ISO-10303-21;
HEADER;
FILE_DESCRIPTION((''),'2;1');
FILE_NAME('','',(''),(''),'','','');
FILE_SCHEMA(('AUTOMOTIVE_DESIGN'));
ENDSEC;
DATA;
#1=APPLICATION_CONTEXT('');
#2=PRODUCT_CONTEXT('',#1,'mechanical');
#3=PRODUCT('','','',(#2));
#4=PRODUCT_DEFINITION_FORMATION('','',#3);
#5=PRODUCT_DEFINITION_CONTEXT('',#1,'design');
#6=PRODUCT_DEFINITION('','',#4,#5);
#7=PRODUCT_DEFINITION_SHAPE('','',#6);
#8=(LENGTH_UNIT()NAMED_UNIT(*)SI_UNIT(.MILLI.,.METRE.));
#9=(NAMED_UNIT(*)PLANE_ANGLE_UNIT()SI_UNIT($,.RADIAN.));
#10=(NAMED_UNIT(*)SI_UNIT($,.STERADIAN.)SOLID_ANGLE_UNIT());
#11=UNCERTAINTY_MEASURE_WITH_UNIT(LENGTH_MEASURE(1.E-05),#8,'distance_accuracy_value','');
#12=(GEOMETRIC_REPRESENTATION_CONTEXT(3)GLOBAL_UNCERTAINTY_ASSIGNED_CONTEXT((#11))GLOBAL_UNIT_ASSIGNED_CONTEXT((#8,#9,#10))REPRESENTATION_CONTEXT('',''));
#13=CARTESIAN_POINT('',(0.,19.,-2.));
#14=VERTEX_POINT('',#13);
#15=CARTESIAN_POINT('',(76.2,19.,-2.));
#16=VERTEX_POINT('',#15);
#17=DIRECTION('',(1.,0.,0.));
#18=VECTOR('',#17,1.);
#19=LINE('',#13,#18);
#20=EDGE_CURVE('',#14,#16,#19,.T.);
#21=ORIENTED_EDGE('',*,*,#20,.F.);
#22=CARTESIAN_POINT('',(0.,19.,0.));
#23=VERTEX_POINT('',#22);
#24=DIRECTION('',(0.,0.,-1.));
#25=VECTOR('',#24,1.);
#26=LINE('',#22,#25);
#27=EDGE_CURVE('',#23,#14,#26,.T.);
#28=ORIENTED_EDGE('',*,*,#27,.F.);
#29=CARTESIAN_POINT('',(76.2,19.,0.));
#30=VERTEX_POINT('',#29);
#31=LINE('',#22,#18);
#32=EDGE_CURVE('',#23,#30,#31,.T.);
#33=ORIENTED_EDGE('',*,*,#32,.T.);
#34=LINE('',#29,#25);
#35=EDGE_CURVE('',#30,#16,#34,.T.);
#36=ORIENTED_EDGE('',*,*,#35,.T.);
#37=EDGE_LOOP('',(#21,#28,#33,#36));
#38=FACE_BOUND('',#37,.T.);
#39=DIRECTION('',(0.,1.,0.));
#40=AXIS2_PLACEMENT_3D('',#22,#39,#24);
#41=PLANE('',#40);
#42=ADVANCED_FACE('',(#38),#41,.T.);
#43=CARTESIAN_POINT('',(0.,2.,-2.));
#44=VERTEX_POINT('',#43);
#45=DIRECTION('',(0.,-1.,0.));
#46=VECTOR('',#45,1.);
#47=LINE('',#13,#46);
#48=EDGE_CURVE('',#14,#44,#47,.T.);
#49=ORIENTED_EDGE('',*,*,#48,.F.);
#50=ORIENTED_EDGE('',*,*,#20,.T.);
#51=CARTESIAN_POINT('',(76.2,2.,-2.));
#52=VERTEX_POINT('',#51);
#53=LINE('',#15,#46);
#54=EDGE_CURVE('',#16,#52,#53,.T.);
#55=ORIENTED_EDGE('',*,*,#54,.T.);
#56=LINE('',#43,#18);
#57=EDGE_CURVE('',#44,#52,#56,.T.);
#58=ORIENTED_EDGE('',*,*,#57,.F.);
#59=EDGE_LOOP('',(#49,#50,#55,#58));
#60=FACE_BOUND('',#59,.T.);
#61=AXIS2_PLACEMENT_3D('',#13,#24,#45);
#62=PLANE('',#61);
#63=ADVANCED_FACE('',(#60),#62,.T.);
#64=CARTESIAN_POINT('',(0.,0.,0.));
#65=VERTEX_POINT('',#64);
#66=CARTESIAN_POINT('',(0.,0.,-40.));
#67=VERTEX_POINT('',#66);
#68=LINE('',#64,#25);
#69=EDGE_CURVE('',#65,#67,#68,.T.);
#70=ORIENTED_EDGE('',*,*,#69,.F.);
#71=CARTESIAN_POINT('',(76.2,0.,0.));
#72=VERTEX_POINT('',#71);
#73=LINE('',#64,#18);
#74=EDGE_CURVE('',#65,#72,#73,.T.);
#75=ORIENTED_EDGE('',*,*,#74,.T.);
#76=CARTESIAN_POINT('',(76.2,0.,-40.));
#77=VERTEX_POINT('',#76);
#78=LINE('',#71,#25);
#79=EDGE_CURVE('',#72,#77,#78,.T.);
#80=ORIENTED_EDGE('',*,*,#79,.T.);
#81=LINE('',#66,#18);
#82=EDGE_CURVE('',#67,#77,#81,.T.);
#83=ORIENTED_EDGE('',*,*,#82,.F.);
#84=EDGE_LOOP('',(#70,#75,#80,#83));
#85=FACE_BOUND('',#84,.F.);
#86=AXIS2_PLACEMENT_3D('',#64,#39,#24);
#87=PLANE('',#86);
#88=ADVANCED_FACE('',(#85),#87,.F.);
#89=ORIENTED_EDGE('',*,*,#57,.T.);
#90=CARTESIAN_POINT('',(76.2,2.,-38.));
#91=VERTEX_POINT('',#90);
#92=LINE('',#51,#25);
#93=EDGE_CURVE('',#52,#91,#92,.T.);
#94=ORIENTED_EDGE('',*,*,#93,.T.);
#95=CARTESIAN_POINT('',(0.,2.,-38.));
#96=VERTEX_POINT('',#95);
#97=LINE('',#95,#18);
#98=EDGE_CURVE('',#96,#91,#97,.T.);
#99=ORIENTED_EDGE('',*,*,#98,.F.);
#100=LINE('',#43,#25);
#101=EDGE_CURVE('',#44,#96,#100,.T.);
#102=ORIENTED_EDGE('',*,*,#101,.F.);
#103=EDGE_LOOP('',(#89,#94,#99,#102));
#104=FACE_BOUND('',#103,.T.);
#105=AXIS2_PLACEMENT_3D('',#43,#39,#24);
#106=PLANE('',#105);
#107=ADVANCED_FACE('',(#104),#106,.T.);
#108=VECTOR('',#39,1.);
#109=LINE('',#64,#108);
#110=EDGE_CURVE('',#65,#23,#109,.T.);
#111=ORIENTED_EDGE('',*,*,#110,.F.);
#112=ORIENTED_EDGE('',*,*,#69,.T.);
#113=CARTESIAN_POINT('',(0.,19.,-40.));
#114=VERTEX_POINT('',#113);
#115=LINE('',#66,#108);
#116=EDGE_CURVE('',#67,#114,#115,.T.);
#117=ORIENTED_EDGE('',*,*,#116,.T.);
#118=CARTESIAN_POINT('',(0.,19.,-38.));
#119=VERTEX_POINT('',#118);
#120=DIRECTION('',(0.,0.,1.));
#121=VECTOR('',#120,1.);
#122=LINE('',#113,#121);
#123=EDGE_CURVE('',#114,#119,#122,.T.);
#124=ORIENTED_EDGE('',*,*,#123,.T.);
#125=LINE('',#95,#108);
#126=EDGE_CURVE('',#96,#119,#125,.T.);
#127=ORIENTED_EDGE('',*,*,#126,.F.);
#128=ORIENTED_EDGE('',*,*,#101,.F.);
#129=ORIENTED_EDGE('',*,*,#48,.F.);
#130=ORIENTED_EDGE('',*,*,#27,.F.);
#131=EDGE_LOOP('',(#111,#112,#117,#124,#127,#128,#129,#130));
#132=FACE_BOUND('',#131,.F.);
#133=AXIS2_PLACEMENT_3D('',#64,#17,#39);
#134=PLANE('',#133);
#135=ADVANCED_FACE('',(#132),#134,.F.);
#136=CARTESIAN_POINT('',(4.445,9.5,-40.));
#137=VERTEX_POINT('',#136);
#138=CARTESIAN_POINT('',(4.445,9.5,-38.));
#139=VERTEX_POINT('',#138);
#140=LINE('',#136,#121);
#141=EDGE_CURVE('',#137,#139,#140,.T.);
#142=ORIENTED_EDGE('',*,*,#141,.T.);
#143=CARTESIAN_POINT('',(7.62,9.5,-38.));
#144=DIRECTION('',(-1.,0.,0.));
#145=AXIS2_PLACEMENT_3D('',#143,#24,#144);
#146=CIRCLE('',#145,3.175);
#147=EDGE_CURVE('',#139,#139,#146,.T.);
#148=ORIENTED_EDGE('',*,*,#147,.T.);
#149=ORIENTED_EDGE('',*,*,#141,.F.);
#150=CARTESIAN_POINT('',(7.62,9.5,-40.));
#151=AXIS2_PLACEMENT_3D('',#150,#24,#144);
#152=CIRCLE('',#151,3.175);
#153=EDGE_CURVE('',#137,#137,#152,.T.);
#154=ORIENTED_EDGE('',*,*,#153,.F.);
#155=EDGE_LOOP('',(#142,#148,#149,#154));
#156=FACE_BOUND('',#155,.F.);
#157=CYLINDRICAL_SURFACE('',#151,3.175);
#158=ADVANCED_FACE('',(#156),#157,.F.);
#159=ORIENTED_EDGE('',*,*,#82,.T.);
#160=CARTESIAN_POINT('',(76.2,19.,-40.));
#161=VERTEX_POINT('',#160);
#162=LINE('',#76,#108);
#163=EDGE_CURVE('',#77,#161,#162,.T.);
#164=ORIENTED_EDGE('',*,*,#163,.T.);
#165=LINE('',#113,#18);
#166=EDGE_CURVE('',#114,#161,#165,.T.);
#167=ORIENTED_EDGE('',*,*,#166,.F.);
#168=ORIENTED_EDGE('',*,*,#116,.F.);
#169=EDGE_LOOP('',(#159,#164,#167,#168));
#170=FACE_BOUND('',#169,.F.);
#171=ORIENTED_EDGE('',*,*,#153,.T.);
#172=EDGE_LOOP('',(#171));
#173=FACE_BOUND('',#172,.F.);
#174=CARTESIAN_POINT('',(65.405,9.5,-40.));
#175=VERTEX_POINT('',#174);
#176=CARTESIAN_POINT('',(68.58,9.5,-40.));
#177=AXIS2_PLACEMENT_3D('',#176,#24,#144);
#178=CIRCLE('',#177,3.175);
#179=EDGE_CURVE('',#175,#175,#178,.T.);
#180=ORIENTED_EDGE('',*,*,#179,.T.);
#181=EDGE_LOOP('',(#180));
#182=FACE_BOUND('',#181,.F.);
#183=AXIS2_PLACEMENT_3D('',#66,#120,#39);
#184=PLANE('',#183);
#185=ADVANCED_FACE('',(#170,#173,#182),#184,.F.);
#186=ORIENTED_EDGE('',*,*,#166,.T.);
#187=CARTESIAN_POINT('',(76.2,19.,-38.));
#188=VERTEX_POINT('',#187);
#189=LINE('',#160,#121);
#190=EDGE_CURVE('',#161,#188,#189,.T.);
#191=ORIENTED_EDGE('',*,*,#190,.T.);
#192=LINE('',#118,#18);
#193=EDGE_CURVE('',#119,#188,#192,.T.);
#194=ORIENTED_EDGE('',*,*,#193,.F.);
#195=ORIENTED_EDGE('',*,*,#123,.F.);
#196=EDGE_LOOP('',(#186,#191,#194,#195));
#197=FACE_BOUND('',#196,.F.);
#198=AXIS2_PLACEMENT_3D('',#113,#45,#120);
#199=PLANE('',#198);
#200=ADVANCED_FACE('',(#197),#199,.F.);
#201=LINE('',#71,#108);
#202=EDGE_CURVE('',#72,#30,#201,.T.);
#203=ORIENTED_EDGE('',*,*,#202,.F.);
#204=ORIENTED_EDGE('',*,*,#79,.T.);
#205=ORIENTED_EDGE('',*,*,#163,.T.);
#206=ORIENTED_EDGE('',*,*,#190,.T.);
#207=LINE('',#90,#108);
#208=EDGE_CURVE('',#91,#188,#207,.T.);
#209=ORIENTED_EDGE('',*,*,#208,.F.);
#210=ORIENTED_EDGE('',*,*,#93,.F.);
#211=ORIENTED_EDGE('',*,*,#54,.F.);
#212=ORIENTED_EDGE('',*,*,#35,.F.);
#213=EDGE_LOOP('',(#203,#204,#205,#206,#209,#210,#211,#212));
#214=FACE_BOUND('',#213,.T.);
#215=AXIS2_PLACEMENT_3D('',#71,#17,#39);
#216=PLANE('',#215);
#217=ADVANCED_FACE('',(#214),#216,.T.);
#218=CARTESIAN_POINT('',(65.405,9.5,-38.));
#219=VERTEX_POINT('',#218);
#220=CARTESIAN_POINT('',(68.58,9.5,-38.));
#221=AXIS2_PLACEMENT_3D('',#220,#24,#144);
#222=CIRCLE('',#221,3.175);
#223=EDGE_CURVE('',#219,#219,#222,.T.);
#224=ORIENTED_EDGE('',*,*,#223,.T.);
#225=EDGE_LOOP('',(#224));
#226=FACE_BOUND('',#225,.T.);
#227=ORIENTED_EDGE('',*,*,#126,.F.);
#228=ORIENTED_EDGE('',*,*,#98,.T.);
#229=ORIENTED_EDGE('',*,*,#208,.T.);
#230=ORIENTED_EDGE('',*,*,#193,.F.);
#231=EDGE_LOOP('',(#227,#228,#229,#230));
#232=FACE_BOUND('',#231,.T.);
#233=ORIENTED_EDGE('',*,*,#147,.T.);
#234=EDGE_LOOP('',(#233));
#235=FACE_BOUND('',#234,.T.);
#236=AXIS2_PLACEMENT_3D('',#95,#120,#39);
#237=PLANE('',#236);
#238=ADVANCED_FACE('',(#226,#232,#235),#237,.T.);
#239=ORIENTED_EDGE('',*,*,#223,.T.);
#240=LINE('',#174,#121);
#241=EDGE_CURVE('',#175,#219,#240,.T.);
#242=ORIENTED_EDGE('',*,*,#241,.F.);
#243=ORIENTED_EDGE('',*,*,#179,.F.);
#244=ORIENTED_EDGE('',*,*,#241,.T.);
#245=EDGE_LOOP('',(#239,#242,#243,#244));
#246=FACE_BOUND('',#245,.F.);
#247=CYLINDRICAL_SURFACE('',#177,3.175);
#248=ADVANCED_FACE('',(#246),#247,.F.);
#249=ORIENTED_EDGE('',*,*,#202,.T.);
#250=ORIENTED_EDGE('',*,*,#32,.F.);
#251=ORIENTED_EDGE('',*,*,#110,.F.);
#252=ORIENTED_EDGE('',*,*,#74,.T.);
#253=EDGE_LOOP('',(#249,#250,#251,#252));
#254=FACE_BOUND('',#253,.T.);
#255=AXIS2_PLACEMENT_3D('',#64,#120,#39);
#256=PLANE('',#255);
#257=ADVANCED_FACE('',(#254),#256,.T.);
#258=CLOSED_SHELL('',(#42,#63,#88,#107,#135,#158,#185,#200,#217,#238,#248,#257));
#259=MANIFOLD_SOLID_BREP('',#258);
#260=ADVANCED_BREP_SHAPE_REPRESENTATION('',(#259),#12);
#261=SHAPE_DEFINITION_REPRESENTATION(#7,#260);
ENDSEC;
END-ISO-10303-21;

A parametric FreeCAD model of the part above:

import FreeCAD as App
import Part
import Sketcher

doc = App.newDocument("Part")
body = doc.addObject("PartDesign::Body", "Body")

sketch1 = body.newObject("Sketcher::SketchObject", "Sketch")
sketch1.AttachmentSupport = (doc.getObject("YZ_Plane"), [""])
sketch1.MapMode = "FlatFace"
sketch1.addGeometry([
    Part.LineSegment(App.Vector(19, 0, 0), App.Vector(0, 0, 0)),
    Part.LineSegment(App.Vector(0, 0, 0), App.Vector(0, -40, 0)),
    Part.LineSegment(App.Vector(0, -40, 0), App.Vector(19, -40, 0)),
    Part.LineSegment(App.Vector(19, -40, 0), App.Vector(19, -38, 0)),
    Part.LineSegment(App.Vector(19, -38, 0), App.Vector(2, -38, 0)),
    Part.LineSegment(App.Vector(2, -38, 0), App.Vector(2, -2, 0)),
    Part.LineSegment(App.Vector(2, -2, 0), App.Vector(19, -2, 0)),
    Part.LineSegment(App.Vector(19, -2, 0), App.Vector(19, 0, 0)),
], False)
sketch1.addConstraint([
    Sketcher.Constraint("Coincident", 0, 2, 1, 1),
    Sketcher.Constraint("Coincident", 1, 2, 2, 1),
    Sketcher.Constraint("Coincident", 2, 2, 3, 1),
    Sketcher.Constraint("Coincident", 3, 2, 4, 1),
    Sketcher.Constraint("Coincident", 4, 2, 5, 1),
    Sketcher.Constraint("Coincident", 5, 2, 6, 1),
    Sketcher.Constraint("Coincident", 6, 2, 7, 1),
    Sketcher.Constraint("Coincident", 7, 2, 0, 1),
    Sketcher.Constraint("Horizontal", 0),
    Sketcher.Constraint("Vertical", 1),
    Sketcher.Constraint("Horizontal", 2),
    Sketcher.Constraint("Vertical", 3),
    Sketcher.Constraint("Horizontal", 4),
    Sketcher.Constraint("Vertical", 5),
    Sketcher.Constraint("Horizontal", 6),
    Sketcher.Constraint("Vertical", 7),
    Sketcher.Constraint("Coincident", 0, 2, -1, 1),
    Sketcher.Constraint("Vertical", 3, 2, 6, 2),
    Sketcher.Constraint("Equal", 3, 7),
    Sketcher.Constraint("DistanceX", 0, 2, 0, 1, 19.0),
    Sketcher.Constraint("DistanceY", 1, 2, 1, 1, 40.0),
    Sketcher.Constraint("DistanceY", 3, 1, 3, 2, 2.0),
    Sketcher.Constraint("DistanceX", -1, 1, 4, 2, 2.0),
])
pad1 = body.newObject("PartDesign::Pad", "Pad")
pad1.Profile = sketch1
pad1.Length = 76.2

sketch2 = body.newObject("Sketcher::SketchObject", "Sketch001")
sketch2.AttachmentSupport = (doc.getObject("XY_Plane"), [""])
sketch2.MapMode = "FlatFace"
sketch2.AttachmentOffset = App.Placement(App.Vector(0, 0, -40), App.Rotation())
sketch2.addGeometry([
    Part.Circle(App.Vector(68.6, 9.5, 0), App.Vector(0, 0, 1), 3.2),
    Part.Circle(App.Vector(7.6, 9.5, 0), App.Vector(0, 0, 1), 3.2),
], False)
sketch2.addConstraint([
    Sketcher.Constraint("Equal", 0, 1),
    Sketcher.Constraint("Horizontal", 0, 3, 1, 3),
    Sketcher.Constraint("Diameter", 0, 6.35),
    Sketcher.Constraint("DistanceX", -1, 1, 1, 3, 7.62),
    Sketcher.Constraint("DistanceY", -1, 1, 0, 3, 9.5),
    Sketcher.Constraint("DistanceX", -1, 1, 0, 3, 68.58),
])
pocket1 = body.newObject("PartDesign::Pocket", "Pocket")
pocket1.Profile = sketch2
pocket1.Length = 25.4
pocket1.Reversed = True

doc.recompute()
